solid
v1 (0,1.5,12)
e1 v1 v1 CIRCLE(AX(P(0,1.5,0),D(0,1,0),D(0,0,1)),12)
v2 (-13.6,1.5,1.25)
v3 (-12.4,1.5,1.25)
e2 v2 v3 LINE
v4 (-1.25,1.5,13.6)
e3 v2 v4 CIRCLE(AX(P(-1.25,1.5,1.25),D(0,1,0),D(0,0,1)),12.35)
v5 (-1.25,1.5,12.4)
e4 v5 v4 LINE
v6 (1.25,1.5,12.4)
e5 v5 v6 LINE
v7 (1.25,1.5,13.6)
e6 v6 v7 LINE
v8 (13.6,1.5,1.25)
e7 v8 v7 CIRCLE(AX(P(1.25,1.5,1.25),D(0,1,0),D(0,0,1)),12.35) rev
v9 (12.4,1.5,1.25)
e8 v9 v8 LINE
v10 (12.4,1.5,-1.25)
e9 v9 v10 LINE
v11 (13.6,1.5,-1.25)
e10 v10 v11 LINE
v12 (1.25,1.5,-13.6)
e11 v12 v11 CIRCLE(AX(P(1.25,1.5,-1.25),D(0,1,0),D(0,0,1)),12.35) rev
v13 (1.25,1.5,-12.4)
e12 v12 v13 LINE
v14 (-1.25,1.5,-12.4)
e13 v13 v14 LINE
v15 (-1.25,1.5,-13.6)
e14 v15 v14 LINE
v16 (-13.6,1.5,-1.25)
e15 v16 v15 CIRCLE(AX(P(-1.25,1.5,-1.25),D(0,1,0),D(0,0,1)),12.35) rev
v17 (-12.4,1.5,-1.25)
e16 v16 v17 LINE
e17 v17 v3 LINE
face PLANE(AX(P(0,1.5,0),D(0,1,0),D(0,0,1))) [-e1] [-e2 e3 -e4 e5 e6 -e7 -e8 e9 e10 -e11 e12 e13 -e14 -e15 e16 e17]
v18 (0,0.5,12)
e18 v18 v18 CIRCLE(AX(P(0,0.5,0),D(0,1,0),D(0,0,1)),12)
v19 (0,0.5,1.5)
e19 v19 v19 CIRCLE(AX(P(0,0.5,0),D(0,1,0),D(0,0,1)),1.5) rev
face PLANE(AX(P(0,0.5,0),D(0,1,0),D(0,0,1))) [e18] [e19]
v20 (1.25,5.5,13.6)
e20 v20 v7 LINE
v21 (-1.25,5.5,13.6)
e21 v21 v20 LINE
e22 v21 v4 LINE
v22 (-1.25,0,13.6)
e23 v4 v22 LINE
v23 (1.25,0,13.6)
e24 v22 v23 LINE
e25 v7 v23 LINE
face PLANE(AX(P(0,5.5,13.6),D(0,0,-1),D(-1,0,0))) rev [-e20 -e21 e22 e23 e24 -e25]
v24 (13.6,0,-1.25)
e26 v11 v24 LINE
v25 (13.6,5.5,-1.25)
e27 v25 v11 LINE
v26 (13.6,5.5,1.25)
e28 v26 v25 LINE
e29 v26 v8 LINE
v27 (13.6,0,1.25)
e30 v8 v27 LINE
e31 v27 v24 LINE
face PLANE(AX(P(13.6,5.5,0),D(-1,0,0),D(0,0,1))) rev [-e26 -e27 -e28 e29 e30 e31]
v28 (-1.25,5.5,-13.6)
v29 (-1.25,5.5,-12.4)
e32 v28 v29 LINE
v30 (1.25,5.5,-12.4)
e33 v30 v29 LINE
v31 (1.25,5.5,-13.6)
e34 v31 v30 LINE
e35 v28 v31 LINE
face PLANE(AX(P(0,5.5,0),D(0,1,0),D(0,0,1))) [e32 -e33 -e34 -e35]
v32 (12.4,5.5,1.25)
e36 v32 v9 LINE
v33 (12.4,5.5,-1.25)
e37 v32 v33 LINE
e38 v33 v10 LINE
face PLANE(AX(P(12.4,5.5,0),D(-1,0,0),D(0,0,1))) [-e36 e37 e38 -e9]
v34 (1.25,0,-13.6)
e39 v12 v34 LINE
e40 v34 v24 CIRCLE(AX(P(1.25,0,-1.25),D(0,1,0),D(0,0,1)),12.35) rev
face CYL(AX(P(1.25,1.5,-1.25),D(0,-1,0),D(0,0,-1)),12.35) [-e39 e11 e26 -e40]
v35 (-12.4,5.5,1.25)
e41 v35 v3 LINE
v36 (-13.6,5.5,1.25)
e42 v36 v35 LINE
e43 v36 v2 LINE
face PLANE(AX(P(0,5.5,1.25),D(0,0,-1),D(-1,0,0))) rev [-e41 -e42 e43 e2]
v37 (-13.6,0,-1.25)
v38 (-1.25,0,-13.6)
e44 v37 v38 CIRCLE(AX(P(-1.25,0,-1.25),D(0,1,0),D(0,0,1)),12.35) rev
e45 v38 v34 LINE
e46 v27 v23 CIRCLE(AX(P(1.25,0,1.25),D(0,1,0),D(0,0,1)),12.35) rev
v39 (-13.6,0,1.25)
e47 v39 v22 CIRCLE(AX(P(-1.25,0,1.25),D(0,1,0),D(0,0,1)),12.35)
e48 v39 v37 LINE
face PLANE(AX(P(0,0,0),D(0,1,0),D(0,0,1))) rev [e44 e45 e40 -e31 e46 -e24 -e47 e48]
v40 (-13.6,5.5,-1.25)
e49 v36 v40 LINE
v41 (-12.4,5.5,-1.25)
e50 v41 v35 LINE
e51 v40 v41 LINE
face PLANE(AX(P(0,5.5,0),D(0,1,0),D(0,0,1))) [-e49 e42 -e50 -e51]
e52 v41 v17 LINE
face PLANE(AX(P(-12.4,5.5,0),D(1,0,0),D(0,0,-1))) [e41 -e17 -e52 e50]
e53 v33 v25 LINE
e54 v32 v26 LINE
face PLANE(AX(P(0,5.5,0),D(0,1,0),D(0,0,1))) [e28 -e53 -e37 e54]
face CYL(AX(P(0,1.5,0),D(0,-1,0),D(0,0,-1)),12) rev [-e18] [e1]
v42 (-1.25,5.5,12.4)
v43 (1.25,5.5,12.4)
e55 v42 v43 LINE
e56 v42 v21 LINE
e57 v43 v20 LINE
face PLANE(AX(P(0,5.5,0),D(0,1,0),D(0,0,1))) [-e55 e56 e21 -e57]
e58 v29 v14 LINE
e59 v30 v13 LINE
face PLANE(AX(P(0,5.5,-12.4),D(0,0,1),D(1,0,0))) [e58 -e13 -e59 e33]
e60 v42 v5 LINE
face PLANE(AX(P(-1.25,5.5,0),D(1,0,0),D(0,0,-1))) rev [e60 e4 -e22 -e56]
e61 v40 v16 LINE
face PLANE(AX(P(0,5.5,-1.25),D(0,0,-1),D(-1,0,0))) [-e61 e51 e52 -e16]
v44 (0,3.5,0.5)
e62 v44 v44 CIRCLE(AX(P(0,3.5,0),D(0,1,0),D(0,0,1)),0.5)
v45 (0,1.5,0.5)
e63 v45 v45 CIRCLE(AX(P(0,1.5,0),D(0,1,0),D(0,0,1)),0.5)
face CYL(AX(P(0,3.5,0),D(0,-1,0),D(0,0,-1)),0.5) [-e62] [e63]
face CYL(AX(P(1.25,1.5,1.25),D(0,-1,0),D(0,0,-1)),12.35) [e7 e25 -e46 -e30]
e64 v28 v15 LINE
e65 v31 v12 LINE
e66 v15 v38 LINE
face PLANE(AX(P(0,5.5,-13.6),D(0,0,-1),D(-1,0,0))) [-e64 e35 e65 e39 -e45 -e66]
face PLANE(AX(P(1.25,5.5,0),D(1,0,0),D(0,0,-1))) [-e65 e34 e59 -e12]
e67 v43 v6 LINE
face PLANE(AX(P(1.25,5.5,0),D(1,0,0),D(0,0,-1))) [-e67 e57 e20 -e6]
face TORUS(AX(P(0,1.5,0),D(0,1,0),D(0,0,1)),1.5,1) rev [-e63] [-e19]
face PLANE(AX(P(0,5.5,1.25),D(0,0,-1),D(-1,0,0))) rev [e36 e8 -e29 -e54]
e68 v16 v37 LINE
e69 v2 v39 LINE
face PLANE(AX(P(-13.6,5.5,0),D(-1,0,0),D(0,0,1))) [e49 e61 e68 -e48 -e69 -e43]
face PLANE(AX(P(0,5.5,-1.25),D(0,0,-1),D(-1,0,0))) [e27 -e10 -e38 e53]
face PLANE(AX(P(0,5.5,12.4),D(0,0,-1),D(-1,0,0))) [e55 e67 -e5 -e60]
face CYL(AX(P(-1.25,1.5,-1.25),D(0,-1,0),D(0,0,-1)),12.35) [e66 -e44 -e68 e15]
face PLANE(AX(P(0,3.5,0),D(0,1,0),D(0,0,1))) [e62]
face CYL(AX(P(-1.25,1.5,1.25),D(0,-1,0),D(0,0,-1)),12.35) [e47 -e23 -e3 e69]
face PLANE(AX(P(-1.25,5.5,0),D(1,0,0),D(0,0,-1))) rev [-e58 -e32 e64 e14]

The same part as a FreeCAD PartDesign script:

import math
import FreeCAD as App
import Part
import Sketcher

V = App.Vector
Q = App.Units.Quantity


def edges_at(feature, points):
    """Names of the edges that pass closest to the given points."""
    edges = feature.Shape.Edges
    near = lambda p: min(range(len(edges)), key=lambda i: edges[i].distToShape(Part.Vertex(*p))[0])
    return sorted({f"Edge{near(p) + 1}" for p in points})


def add_polygon(sketch, points):
    """Adds a closed chain of lines whose ends are joined by coincident constraints."""
    first, n = sketch.GeometryCount, len(points)
    for a, b in zip(points, points[1:] + points[:1]):
        sketch.addGeometry(Part.LineSegment(App.Vector(*a, 0), App.Vector(*b, 0)), False)
    for i in range(n):
        sketch.addConstraint(Sketcher.Constraint("Coincident", first + i, 2, first + (i + 1) % n, 1))

doc = App.newDocument("Part")
body = doc.addObject("PartDesign::Body", "Body")

sketch1 = body.newObject("Sketcher::SketchObject", "Sketch")
sketch1.AttachmentSupport = (doc.getObject("XZ_Plane"), [""])
sketch1.MapMode = "FlatFace"
add_polygon(sketch1, [(-13.6, -1.25), (-13.6, 1.25), (-12.4, 1.25), (-12.4, -1.25)])
sketch1.addConstraint([
    Sketcher.Constraint("Vertical", 0),
    Sketcher.Constraint("Horizontal", 1),
    Sketcher.Constraint("Vertical", 2),
    Sketcher.Constraint("Horizontal", 3),
    Sketcher.Constraint("DistanceX", 1, 1, 1, 2, Q("1.2 mm")),
    Sketcher.Constraint("DistanceY", 0, 1, 0, 2, Q("2.5 mm")),
    Sketcher.Constraint("DistanceX", 0, 2, -1, 1, Q("13.6 mm")),
    Sketcher.Constraint("DistanceY", -1, 1, 0, 2, Q("1.25 mm")),
])
pad1 = body.newObject("PartDesign::Pad", "Pad")
pad1.Profile = sketch1
pad1.Length = 5.5
pad1.Reversed = True
body2 = doc.addObject("PartDesign::Body", "Body001")

sketch2 = body2.newObject("Sketcher::SketchObject", "Sketch001")
sketch2.AttachmentSupport = (doc.getObject("XZ_Plane001"), [""])
sketch2.MapMode = "FlatFace"
add_polygon(sketch2, [(-1.25, -13.6), (-1.25, -12.4), (1.25, -12.4), (1.25, -13.6)])
sketch2.addConstraint([
    Sketcher.Constraint("Vertical", 0),
    Sketcher.Constraint("Horizontal", 1),
    Sketcher.Constraint("Vertical", 2),
    Sketcher.Constraint("Horizontal", 3),
    Sketcher.Constraint("DistanceX", 1, 1, 1, 2, Q("2.5 mm")),
    Sketcher.Constraint("DistanceY", 0, 1, 0, 2, Q("1.2 mm")),
    Sketcher.Constraint("DistanceY", 0, 2, -1, 1, Q("12.4 mm")),
    Sketcher.Constraint("DistanceX", 0, 2, -1, 1, Q("1.25 mm")),
])
pad2 = body2.newObject("PartDesign::Pad", "Pad001")
pad2.Profile = sketch2
pad2.Length = 5.5
pad2.Reversed = True
body3 = doc.addObject("PartDesign::Body", "Body002")

sketch3 = body3.newObject("Sketcher::SketchObject", "Sketch002")
sketch3.AttachmentSupport = (doc.getObject("XZ_Plane002"), [""])
sketch3.MapMode = "FlatFace"
add_polygon(sketch3, [(12.4, -1.25), (12.4, 1.25), (13.6, 1.25), (13.6, -1.25)])
sketch3.addConstraint([
    Sketcher.Constraint("Vertical", 0),
    Sketcher.Constraint("Horizontal", 1),
    Sketcher.Constraint("Vertical", 2),
    Sketcher.Constraint("Horizontal", 3),
    Sketcher.Constraint("DistanceX", 1, 1, 1, 2, Q("1.2 mm")),
    Sketcher.Constraint("DistanceY", 0, 1, 0, 2, Q("2.5 mm")),
    Sketcher.Constraint("DistanceX", -1, 1, 0, 2, Q("12.4 mm")),
    Sketcher.Constraint("DistanceY", -1, 1, 0, 2, Q("1.25 mm")),
])
pad3 = body3.newObject("PartDesign::Pad", "Pad002")
pad3.Profile = sketch3
pad3.Length = 5.5
pad3.Reversed = True
body4 = doc.addObject("PartDesign::Body", "Body003")

sketch4 = body4.newObject("Sketcher::SketchObject", "Sketch003")
sketch4.AttachmentSupport = (doc.getObject("XZ_Plane003"), [""])
sketch4.MapMode = "FlatFace"
add_polygon(sketch4, [(-1.25, 12.4), (-1.25, 13.6), (1.25, 13.6), (1.25, 12.4)])
sketch4.addConstraint([
    Sketcher.Constraint("Vertical", 0),
    Sketcher.Constraint("Horizontal", 1),
    Sketcher.Constraint("Vertical", 2),
    Sketcher.Constraint("Horizontal", 3),
    Sketcher.Constraint("DistanceX", 1, 1, 1, 2, Q("2.5 mm")),
    Sketcher.Constraint("DistanceY", 0, 1, 0, 2, Q("1.2 mm")),
    Sketcher.Constraint("DistanceY", -1, 1, 0, 2, Q("13.6 mm")),
    Sketcher.Constraint("DistanceX", 0, 2, -1, 1, Q("1.25 mm")),
])
pad4 = body4.newObject("PartDesign::Pad", "Pad003")
pad4.Profile = sketch4
pad4.Length = 5.5
pad4.Reversed = True
body5 = doc.addObject("PartDesign::Body", "Body004")

sketch5 = body5.newObject("Sketcher::SketchObject", "Sketch004")
sketch5.AttachmentSupport = (doc.getObject("XZ_Plane004"), [""])
sketch5.MapMode = "FlatFace"
sketch5.addGeometry([
    Part.ArcOfCircle(Part.Circle(V(0, 0, 0), V(0, 0, 1), 12), math.radians(-174.020843), math.radians(-95.979157)),
    Part.ArcOfCircle(Part.Circle(V(0, 0, 0), V(0, 0, 1), 12), math.radians(174.020843), math.radians(185.979157)),
    Part.ArcOfCircle(Part.Circle(V(0, 0, 0), V(0, 0, 1), 12), math.radians(95.979157), math.radians(174.020843)),
    Part.ArcOfCircle(Part.Circle(V(0, 0, 0), V(0, 0, 1), 12), math.radians(84.020843), math.radians(95.979157)),
    Part.ArcOfCircle(Part.Circle(V(0, 0, 0), V(0, 0, 1), 12), math.radians(5.979157), math.radians(84.020843)),
    Part.ArcOfCircle(Part.Circle(V(0, 0, 0), V(0, 0, 1), 12), math.radians(0), math.radians(5.979157)),
    Part.ArcOfCircle(Part.Circle(V(0, 0, 0), V(0, 0, 1), 12), math.radians(-5.979157), math.radians(0)),
    Part.ArcOfCircle(Part.Circle(V(0, 0, 0), V(0, 0, 1), 12), math.radians(-84.020843), math.radians(-5.979157)),
    Part.ArcOfCircle(Part.Circle(V(0, 0, 0), V(0, 0, 1), 12), math.radians(-95.979157), math.radians(-84.020843)),
], False)
sketch5.addConstraint([
    Sketcher.Constraint("Tangent", 0, 1, 1, 2),
    Sketcher.Constraint("Tangent", 1, 1, 2, 2),
    Sketcher.Constraint("Tangent", 2, 1, 3, 2),
    Sketcher.Constraint("Tangent", 3, 1, 4, 2),
    Sketcher.Constraint("Tangent", 4, 1, 5, 2),
    Sketcher.Constraint("Tangent", 5, 1, 6, 2),
    Sketcher.Constraint("Tangent", 6, 1, 7, 2),
    Sketcher.Constraint("Tangent", 7, 1, 8, 2),
    Sketcher.Constraint("Tangent", 8, 1, 0, 2),
    Sketcher.Constraint("Coincident", 0, 3, -1, 1),
    Sketcher.Constraint("Coincident", 2, 3, -1, 1),
    Sketcher.Constraint("Coincident", 4, 3, -1, 1),
    Sketcher.Constraint("Coincident", 6, 3, -1, 1),
    Sketcher.Constraint("PointOnObject", 5, 1, -1),
    Sketcher.Constraint("Horizontal", 2, 1, 3, 1),
    Sketcher.Constraint("Horizontal", 1, 1, 4, 1),
    Sketcher.Constraint("Horizontal", 0, 1, 6, 1),
    Sketcher.Constraint("Horizontal", 7, 1, 8, 1),
    Sketcher.Constraint("Vertical", 0, 1, 1, 1),
    Sketcher.Constraint("Vertical", 3, 1, 7, 1),
    Sketcher.Constraint("Radius", 0, Q("12 mm")),
    Sketcher.Constraint("DistanceY", 0, 1, 1, 1, Q("2.5 mm")),
    Sketcher.Constraint("DistanceX", 2, 1, 3, 1, Q("2.5 mm")),
])
pad5 = body5.newObject("PartDesign::Pad", "Pad004")
pad5.Profile = sketch5
pad5.Length = 0.5
pad5.Reversed = True
body.AllowCompound = True
doc.recompute()

boolean = body.newObject("PartDesign::Boolean", "Boolean")
boolean.Type = "Fuse"
boolean.addObjects([body2])
doc.recompute()

boolean2 = body.newObject("PartDesign::Boolean", "Boolean001")
boolean2.Type = "Fuse"
boolean2.addObjects([body3])
doc.recompute()

boolean3 = body.newObject("PartDesign::Boolean", "Boolean002")
boolean3.Type = "Fuse"
boolean3.addObjects([body4])
doc.recompute()

boolean4 = body.newObject("PartDesign::Boolean", "Boolean003")
boolean4.Type = "Fuse"
boolean4.addObjects([body5])

sketch6 = body.newObject("Sketcher::SketchObject", "Sketch005")
sketch6.AttachmentSupport = (doc.getObject("XZ_Plane"), [""])
sketch6.MapMode = "FlatFace"
sketch6.addGeometry([
    Part.ArcOfCircle(Part.Circle(V(-1.25, -1.25, 0), V(0, 0, 1), 12.35), math.radians(180), math.radians(270)),
    Part.LineSegment(V(-13.6, -1.25, 0), V(-12.4, -1.25, 0)),
    Part.LineSegment(V(-12.4, -1.25, 0), V(-12.4, 1.25, 0)),
    Part.LineSegment(V(-12.4, 1.25, 0), V(-13.6, 1.25, 0)),
    Part.ArcOfCircle(Part.Circle(V(-1.25, 1.25, 0), V(0, 0, 1), 12.35), math.radians(90), math.radians(180)),
    Part.LineSegment(V(-1.25, 13.6, 0), V(-1.25, 12.4, 0)),
    Part.LineSegment(V(-1.25, 12.4, 0), V(1.25, 12.4, 0)),
    Part.LineSegment(V(1.25, 12.4, 0), V(1.25, 13.6, 0)),
    Part.ArcOfCircle(Part.Circle(V(1.25, 1.25, 0), V(0, 0, 1), 12.35), math.radians(0), math.radians(90)),
    Part.LineSegment(V(13.6, 1.25, 0), V(12.4, 1.25, 0)),
    Part.LineSegment(V(12.4, 1.25, 0), V(12.4, -1.25, 0)),
    Part.LineSegment(V(12.4, -1.25, 0), V(13.6, -1.25, 0)),
    Part.ArcOfCircle(Part.Circle(V(1.25, -1.25, 0), V(0, 0, 1), 12.35), math.radians(-90), math.radians(0)),
    Part.LineSegment(V(1.25, -13.6, 0), V(1.25, -12.4, 0)),
    Part.LineSegment(V(1.25, -12.4, 0), V(-1.25, -12.4, 0)),
    Part.LineSegment(V(-1.25, -12.4, 0), V(-1.25, -13.6, 0)),
    Part.ArcOfCircle(Part.Circle(V(0, 0, 0), V(0, 0, 1), 12), math.radians(95.979157), math.radians(174.020843)),
    Part.ArcOfCircle(Part.Circle(V(0, 0, 0), V(0, 0, 1), 12), math.radians(174.020843), math.radians(185.979157)),
    Part.ArcOfCircle(Part.Circle(V(0, 0, 0), V(0, 0, 1), 12), math.radians(-174.020843), math.radians(-95.979157)),
    Part.ArcOfCircle(Part.Circle(V(0, 0, 0), V(0, 0, 1), 12), math.radians(-95.979157), math.radians(-84.020843)),
    Part.ArcOfCircle(Part.Circle(V(0, 0, 0), V(0, 0, 1), 12), math.radians(-84.020843), math.radians(-5.979157)),
    Part.ArcOfCircle(Part.Circle(V(0, 0, 0), V(0, 0, 1), 12), math.radians(-5.979157), math.radians(0)),
    Part.ArcOfCircle(Part.Circle(V(0, 0, 0), V(0, 0, 1), 12), math.radians(0), math.radians(5.979157)),
    Part.ArcOfCircle(Part.Circle(V(0, 0, 0), V(0, 0, 1), 12), math.radians(5.979157), math.radians(84.020843)),
    Part.ArcOfCircle(Part.Circle(V(0, 0, 0), V(0, 0, 1), 12), math.radians(84.020843), math.radians(95.979157)),
], False)
sketch6.addConstraint([
    Sketcher.Constraint("Coincident", 0, 1, 1, 1),
    Sketcher.Constraint("Coincident", 1, 2, 2, 1),
    Sketcher.Constraint("Coincident", 2, 2, 3, 1),
    Sketcher.Constraint("Coincident", 3, 2, 4, 2),
    Sketcher.Constraint("Coincident", 4, 1, 5, 1),
    Sketcher.Constraint("Coincident", 5, 2, 6, 1),
    Sketcher.Constraint("Coincident", 6, 2, 7, 1),
    Sketcher.Constraint("Coincident", 7, 2, 8, 2),
    Sketcher.Constraint("Coincident", 8, 1, 9, 1),
    Sketcher.Constraint("Coincident", 9, 2, 10, 1),
    Sketcher.Constraint("Coincident", 10, 2, 11, 1),
    Sketcher.Constraint("Coincident", 11, 2, 12, 2),
    Sketcher.Constraint("Coincident", 12, 1, 13, 1),
    Sketcher.Constraint("Coincident", 13, 2, 14, 1),
    Sketcher.Constraint("Coincident", 14, 2, 15, 1),
    Sketcher.Constraint("Coincident", 15, 2, 0, 2),
    Sketcher.Constraint("Tangent", 16, 2, 17, 1),
    Sketcher.Constraint("Tangent", 17, 2, 18, 1),
    Sketcher.Constraint("Tangent", 18, 2, 19, 1),
    Sketcher.Constraint("Tangent", 19, 2, 20, 1),
    Sketcher.Constraint("Tangent", 20, 2, 21, 1),
    Sketcher.Constraint("Tangent", 21, 2, 22, 1),
    Sketcher.Constraint("Tangent", 22, 2, 23, 1),
    Sketcher.Constraint("Tangent", 23, 2, 24, 1),
    Sketcher.Constraint("Tangent", 24, 2, 16, 1),
    Sketcher.Constraint("Horizontal", 1),
    Sketcher.Constraint("Vertical", 2),
    Sketcher.Constraint("Horizontal", 3),
    Sketcher.Constraint("Vertical", 5),
    Sketcher.Constraint("Horizontal", 6),
    Sketcher.Constraint("Vertical", 7),
    Sketcher.Constraint("Horizontal", 9),
    Sketcher.Constraint("Vertical", 10),
    Sketcher.Constraint("Horizontal", 11),
    Sketcher.Constraint("Vertical", 13),
    Sketcher.Constraint("Horizontal", 14),
    Sketcher.Constraint("Vertical", 15),
    Sketcher.Constraint("Coincident", 16, 3, -1, 1),
    Sketcher.Constraint("Coincident", 18, 3, -1, 1),
    Sketcher.Constraint("Coincident", 20, 3, -1, 1),
    Sketcher.Constraint("Coincident", 22, 3, -1, 1),
    Sketcher.Constraint("Equal", 0, 4),
    Sketcher.Constraint("Equal", 4, 8),
    Sketcher.Constraint("Equal", 8, 12),
    Sketcher.Constraint("Symmetric", 0, 3, 8, 3, -1, 1),
    Sketcher.Constraint("Symmetric", 4, 3, 12, 3, -1, 1),
    Sketcher.Constraint("Symmetric", 1, 2, 9, 2, -1, 1),
    Sketcher.Constraint("Symmetric", 5, 2, 13, 2, -1, 1),
    Sketcher.Constraint("Symmetric", 4, 3, 8, 3, -2),
    Sketcher.Constraint("PointOnObject", 21, 2, -1),
    Sketcher.Constraint("Horizontal", 12, 3, 0, 1),
    Sketcher.Constraint("Horizontal", 8, 3, 2, 2),
    Sketcher.Constraint("Horizontal", 1, 2, 10, 2),
    Sketcher.Constraint("Horizontal", 9, 2, 16, 2),
    Sketcher.Constraint("Horizontal", 11, 2, 17, 2),
    Sketcher.Constraint("Horizontal", 18, 2, 19, 2),
    Sketcher.Constraint("Horizontal", 17, 2, 20, 2),
    Sketcher.Constraint("Horizontal", 16, 2, 22, 2),
    Sketcher.Constraint("Horizontal", 23, 2, 24, 2),
    Sketcher.Constraint("Vertical", 0, 3, 4, 1),
    Sketcher.Constraint("Vertical", 12, 3, 6, 2),
    Sketcher.Constraint("Vertical", 5, 2, 14, 2),
    Sketcher.Constraint("Vertical", 15, 2, 18, 2),
    Sketcher.Constraint("Vertical", 19, 2, 23, 2),
    Sketcher.Constraint("Equal", 14, 2),
    Sketcher.Constraint("Equal", 11, 5),
    Sketcher.Constraint("Radius", 16, Q("12 mm")),
    Sketcher.Constraint("Radius", 0, Q("12.35 mm")),
    Sketcher.Constraint("DistanceX", 1, 1, 1, 2, Q("1.2 mm")),
    Sketcher.Constraint("DistanceX", 6, 1, 6, 2, Q("2.5 mm")),
])
pad6 = body.newObject("PartDesign::Pad", "Pad005")
pad6.Profile = sketch6
pad6.Length = 1.5
pad6.Reversed = True

sketch7 = body.newObject("Sketcher::SketchObject", "Sketch006")
sketch7.AttachmentSupport = (doc.getObject("XZ_Plane"), [""])
sketch7.MapMode = "FlatFace"
sketch7.AttachmentOffset = App.Placement(V(0, 0, -0.5), App.Rotation())
sketch7.addGeometry(Part.Circle(V(0, 0, 0), V(0, 0, 1), 0.5), False)
sketch7.addConstraint([
    Sketcher.Constraint("Coincident", 0, 3, -1, 1),
    Sketcher.Constraint("Diameter", 0, Q("1 mm")),
])
pad7 = body.newObject("PartDesign::Pad", "Pad006")
pad7.Profile = sketch7
pad7.Length = 3
pad7.Reversed = True
doc.recompute()

fillet = body.newObject("PartDesign::Fillet", "Fillet")
fillet.Base = (pad7, edges_at(pad7, [(-0.5, 0.5, 0)]))
fillet.Radius = 1

doc.recompute()
